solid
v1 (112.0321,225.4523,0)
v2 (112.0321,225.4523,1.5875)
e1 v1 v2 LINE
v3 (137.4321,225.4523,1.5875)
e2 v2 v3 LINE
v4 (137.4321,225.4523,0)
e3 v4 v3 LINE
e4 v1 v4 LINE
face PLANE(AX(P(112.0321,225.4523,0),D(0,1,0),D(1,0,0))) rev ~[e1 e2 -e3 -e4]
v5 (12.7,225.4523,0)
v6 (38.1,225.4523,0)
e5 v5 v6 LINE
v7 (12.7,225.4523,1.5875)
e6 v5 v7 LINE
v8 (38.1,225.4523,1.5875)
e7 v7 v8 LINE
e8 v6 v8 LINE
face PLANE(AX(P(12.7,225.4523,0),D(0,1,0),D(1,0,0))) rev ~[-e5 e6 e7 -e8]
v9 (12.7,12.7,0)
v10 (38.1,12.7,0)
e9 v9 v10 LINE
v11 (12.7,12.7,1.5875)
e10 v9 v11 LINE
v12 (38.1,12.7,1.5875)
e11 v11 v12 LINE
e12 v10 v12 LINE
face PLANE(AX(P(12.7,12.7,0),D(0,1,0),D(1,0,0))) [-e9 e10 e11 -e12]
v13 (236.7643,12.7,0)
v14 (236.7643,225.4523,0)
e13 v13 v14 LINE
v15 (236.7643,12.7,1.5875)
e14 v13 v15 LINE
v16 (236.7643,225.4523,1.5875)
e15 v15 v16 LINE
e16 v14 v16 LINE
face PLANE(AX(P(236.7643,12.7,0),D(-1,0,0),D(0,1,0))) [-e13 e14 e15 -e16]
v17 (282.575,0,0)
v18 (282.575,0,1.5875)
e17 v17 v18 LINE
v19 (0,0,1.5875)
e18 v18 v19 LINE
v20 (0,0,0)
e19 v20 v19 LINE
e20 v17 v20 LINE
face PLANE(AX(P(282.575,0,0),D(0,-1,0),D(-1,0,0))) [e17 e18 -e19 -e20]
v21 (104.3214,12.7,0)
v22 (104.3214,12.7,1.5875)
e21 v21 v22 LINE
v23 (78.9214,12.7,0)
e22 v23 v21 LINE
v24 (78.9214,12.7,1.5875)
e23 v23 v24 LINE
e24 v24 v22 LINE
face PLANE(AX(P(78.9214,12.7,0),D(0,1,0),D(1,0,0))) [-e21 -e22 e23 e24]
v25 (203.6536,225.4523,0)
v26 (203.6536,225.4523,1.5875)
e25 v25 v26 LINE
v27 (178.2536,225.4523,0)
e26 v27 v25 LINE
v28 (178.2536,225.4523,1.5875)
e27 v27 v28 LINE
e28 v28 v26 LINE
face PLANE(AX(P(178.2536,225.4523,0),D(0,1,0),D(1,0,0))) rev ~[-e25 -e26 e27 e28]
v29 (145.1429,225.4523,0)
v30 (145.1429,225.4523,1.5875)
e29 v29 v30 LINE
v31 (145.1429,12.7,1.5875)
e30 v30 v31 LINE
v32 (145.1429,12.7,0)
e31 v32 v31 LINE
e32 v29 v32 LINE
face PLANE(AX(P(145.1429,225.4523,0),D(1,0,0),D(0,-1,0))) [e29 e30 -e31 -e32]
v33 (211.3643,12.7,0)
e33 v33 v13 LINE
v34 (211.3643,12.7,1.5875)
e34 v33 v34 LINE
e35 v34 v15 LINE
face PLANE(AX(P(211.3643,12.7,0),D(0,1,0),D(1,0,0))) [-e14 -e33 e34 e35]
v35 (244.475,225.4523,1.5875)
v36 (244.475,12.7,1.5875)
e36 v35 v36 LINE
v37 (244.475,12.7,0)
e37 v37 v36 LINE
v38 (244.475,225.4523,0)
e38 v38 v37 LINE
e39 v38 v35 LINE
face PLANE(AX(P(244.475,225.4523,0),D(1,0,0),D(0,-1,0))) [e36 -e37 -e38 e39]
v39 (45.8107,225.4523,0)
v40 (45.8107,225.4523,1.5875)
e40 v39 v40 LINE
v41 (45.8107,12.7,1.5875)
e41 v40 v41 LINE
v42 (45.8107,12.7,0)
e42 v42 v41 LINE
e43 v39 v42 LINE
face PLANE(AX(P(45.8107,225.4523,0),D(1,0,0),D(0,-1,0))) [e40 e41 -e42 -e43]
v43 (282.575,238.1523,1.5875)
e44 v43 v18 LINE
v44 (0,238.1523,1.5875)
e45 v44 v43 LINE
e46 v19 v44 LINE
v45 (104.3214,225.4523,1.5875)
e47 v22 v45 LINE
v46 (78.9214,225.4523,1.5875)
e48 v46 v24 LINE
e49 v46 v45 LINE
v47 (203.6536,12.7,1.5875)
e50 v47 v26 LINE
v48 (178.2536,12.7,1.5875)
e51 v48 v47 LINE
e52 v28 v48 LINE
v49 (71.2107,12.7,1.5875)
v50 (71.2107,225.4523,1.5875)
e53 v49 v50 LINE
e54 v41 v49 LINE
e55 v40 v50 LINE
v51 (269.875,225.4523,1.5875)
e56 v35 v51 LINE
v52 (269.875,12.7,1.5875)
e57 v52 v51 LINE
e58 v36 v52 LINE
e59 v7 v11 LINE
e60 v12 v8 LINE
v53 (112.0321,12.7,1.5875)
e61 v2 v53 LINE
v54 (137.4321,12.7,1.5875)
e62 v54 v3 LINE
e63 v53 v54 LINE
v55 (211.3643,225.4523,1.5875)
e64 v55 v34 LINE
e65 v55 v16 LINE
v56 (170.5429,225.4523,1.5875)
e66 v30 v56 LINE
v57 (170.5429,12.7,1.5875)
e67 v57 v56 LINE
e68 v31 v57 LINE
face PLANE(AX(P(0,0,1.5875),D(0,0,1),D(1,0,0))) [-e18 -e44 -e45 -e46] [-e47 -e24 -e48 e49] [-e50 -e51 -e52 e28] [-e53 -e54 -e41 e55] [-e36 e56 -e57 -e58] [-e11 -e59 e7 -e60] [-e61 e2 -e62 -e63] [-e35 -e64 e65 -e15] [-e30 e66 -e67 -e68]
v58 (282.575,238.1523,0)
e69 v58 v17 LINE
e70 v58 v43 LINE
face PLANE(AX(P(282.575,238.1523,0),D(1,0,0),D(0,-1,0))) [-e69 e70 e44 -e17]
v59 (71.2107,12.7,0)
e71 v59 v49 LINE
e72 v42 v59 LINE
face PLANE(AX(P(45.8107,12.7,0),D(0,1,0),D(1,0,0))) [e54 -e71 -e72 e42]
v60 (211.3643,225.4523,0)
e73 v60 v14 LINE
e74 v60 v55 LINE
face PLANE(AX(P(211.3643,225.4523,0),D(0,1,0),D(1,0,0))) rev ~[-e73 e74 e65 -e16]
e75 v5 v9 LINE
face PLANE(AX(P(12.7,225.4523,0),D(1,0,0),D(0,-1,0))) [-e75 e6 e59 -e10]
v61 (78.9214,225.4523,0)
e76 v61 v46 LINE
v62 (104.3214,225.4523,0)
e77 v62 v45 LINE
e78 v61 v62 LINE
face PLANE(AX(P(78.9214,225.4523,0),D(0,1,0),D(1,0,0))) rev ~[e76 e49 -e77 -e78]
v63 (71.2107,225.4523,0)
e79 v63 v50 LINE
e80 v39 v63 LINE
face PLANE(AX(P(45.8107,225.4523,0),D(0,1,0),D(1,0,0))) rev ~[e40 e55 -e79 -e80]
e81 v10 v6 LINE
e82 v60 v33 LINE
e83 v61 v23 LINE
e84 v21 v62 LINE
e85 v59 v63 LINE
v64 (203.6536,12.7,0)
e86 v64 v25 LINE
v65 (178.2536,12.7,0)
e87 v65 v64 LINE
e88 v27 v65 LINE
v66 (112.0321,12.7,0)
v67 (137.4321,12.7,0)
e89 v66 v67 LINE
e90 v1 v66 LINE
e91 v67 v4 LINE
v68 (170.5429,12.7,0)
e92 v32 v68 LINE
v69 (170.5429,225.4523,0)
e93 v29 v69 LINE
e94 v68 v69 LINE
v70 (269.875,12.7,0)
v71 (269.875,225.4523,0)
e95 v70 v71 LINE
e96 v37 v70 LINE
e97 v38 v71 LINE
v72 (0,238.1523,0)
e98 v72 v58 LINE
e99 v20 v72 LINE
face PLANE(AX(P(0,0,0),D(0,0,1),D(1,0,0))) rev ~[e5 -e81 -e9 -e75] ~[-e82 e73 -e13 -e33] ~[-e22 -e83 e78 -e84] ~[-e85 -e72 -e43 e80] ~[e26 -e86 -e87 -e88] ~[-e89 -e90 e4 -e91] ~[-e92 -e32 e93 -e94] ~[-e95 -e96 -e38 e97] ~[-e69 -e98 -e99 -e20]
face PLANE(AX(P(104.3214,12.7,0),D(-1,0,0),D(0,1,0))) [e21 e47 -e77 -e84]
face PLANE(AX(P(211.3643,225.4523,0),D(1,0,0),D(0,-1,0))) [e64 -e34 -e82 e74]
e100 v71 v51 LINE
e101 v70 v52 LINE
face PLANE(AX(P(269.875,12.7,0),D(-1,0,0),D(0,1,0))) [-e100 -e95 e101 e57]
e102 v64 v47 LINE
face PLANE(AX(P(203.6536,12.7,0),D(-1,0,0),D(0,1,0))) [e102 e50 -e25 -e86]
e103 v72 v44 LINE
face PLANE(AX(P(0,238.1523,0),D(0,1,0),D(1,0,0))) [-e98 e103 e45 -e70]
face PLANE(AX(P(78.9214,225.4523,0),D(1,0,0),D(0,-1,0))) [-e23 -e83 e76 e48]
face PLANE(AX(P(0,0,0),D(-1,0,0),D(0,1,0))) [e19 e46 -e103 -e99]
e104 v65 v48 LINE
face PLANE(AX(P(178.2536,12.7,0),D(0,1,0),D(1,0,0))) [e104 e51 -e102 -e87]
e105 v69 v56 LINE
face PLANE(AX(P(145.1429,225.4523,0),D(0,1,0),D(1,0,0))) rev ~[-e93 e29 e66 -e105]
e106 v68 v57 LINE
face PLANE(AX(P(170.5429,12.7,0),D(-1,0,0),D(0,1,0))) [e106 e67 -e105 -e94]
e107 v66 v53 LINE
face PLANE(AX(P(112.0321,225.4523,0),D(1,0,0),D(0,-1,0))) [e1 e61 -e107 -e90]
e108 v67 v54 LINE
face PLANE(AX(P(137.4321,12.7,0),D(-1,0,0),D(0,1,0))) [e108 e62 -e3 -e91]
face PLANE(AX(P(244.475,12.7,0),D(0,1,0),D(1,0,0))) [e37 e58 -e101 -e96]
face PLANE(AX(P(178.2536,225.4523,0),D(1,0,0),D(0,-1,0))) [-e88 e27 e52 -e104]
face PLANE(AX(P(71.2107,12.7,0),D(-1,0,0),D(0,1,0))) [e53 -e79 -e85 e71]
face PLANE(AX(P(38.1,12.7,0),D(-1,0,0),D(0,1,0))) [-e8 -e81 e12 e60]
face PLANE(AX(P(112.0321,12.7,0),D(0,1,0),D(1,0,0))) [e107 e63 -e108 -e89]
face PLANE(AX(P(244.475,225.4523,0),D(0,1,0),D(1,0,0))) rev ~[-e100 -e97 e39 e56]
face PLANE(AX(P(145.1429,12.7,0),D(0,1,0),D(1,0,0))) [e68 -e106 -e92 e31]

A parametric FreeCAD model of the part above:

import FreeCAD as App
import Part
import Sketcher

V = App.Vector
Q = App.Units.Quantity


def add_polygon(sketch, points):
    """Adds a closed chain of lines whose ends are joined by coincident constraints."""
    first, n = sketch.GeometryCount, len(points)
    for a, b in zip(points, points[1:] + points[:1]):
        sketch.addGeometry(Part.LineSegment(App.Vector(*a, 0), App.Vector(*b, 0)), False)
    for i in range(n):
        sketch.addConstraint(Sketcher.Constraint("Coincident", first + i, 2, first + (i + 1) % n, 1))

doc = App.newDocument("Part")
body = doc.addObject("PartDesign::Body", "Body")

sketch1 = body.newObject("Sketcher::SketchObject", "Sketch")
sketch1.AttachmentSupport = (doc.getObject("XY_Plane"), [""])
sketch1.MapMode = "FlatFace"
add_polygon(sketch1, [(0, 238), (0, 0), (283, 0), (283, 238)])
add_polygon(sketch1, [(13, 13), (13, 225), (38, 225), (38, 13)])
add_polygon(sketch1, [(46, 13), (46, 225), (71, 225), (71, 13)])
add_polygon(sketch1, [(79, 13), (79, 225), (104, 225), (104, 13)])
add_polygon(sketch1, [(112, 13), (112, 225), (137, 225), (137, 13)])
add_polygon(sketch1, [(145, 13), (145, 225), (171, 225), (171, 13)])
add_polygon(sketch1, [(178, 13), (178, 225), (204, 225), (204, 13)])
add_polygon(sketch1, [(211, 13), (211, 225), (237, 225), (237, 13)])
add_polygon(sketch1, [(244, 13), (244, 225), (270, 225), (270, 13)])
sketch1.addConstraint(Sketcher.Constraint("Vertical", 0))
sketch1.addConstraint(Sketcher.Constraint("Horizontal", 1))
sketch1.addConstraint(Sketcher.Constraint("Vertical", 2))
sketch1.addConstraint(Sketcher.Constraint("Horizontal", 3))
sketch1.addConstraint(Sketcher.Constraint("Vertical", 4))
sketch1.addConstraint(Sketcher.Constraint("Horizontal", 5))
sketch1.addConstraint(Sketcher.Constraint("Vertical", 6))
sketch1.addConstraint(Sketcher.Constraint("Horizontal", 7))
sketch1.addConstraint(Sketcher.Constraint("Vertical", 8))
sketch1.addConstraint(Sketcher.Constraint("Horizontal", 9))
sketch1.addConstraint(Sketcher.Constraint("Vertical", 10))
sketch1.addConstraint(Sketcher.Constraint("Horizontal", 11))
sketch1.addConstraint(Sketcher.Constraint("Vertical", 12))
sketch1.addConstraint(Sketcher.Constraint("Horizontal", 13))
sketch1.addConstraint(Sketcher.Constraint("Vertical", 14))
sketch1.addConstraint(Sketcher.Constraint("Horizontal", 15))
sketch1.addConstraint(Sketcher.Constraint("Vertical", 16))
sketch1.addConstraint(Sketcher.Constraint("Horizontal", 17))
sketch1.addConstraint(Sketcher.Constraint("Vertical", 18))
sketch1.addConstraint(Sketcher.Constraint("Horizontal", 19))
sketch1.addConstraint(Sketcher.Constraint("Vertical", 20))
sketch1.addConstraint(Sketcher.Constraint("Horizontal", 21))
sketch1.addConstraint(Sketcher.Constraint("Vertical", 22))
sketch1.addConstraint(Sketcher.Constraint("Horizontal", 23))
sketch1.addConstraint(Sketcher.Constraint("Vertical", 24))
sketch1.addConstraint(Sketcher.Constraint("Horizontal", 25))
sketch1.addConstraint(Sketcher.Constraint("Vertical", 26))
sketch1.addConstraint(Sketcher.Constraint("Horizontal", 27))
sketch1.addConstraint(Sketcher.Constraint("Vertical", 28))
sketch1.addConstraint(Sketcher.Constraint("Horizontal", 29))
sketch1.addConstraint(Sketcher.Constraint("Vertical", 30))
sketch1.addConstraint(Sketcher.Constraint("Horizontal", 31))
sketch1.addConstraint(Sketcher.Constraint("Vertical", 32))
sketch1.addConstraint(Sketcher.Constraint("Horizontal", 33))
sketch1.addConstraint(Sketcher.Constraint("Vertical", 34))
sketch1.addConstraint(Sketcher.Constraint("Horizontal", 35))
sketch1.addConstraint(Sketcher.Constraint("Coincident", 0, 2, -1, 1))
sketch1.addConstraint(Sketcher.Constraint("Horizontal", 5, 2, 8, 2))
sketch1.addConstraint(Sketcher.Constraint("Horizontal", 7, 2, 10, 2))
sketch1.addConstraint(Sketcher.Constraint("Horizontal", 9, 2, 12, 2))
sketch1.addConstraint(Sketcher.Constraint("Horizontal", 11, 2, 14, 2))
sketch1.addConstraint(Sketcher.Constraint("Horizontal", 13, 2, 16, 2))
sketch1.addConstraint(Sketcher.Constraint("Horizontal", 15, 2, 18, 2))
sketch1.addConstraint(Sketcher.Constraint("Horizontal", 17, 2, 20, 2))
sketch1.addConstraint(Sketcher.Constraint("Horizontal", 19, 2, 22, 2))
sketch1.addConstraint(Sketcher.Constraint("Horizontal", 21, 2, 24, 2))
sketch1.addConstraint(Sketcher.Constraint("Horizontal", 23, 2, 26, 2))
sketch1.addConstraint(Sketcher.Constraint("Horizontal", 25, 2, 28, 2))
sketch1.addConstraint(Sketcher.Constraint("Horizontal", 27, 2, 30, 2))
sketch1.addConstraint(Sketcher.Constraint("Horizontal", 29, 2, 32, 2))
sketch1.addConstraint(Sketcher.Constraint("Horizontal", 31, 2, 34, 2))
sketch1.addConstraint(Sketcher.Constraint("Equal", 7, 9))
sketch1.addConstraint(Sketcher.Constraint("Equal", 11, 13))
sketch1.addConstraint(Sketcher.Constraint("Equal", 15, 17))
sketch1.addConstraint(Sketcher.Constraint("Equal", 19, 21))
sketch1.addConstraint(Sketcher.Constraint("Equal", 23, 25))
sketch1.addConstraint(Sketcher.Constraint("Equal", 27, 29))
sketch1.addConstraint(Sketcher.Constraint("Equal", 31, 33))
sketch1.addConstraint(Sketcher.Constraint("DistanceX", 5, 1, 5, 2, Q("1 in")))
sketch1.addConstraint(Sketcher.Constraint("DistanceX", -1, 1, 4, 2, Q("0.5 in")))
sketch1.addConstraint(Sketcher.Constraint("DistanceY", -1, 1, 6, 2, Q("0.5 in")))
sketch1.addConstraint(Sketcher.Constraint("DistanceY", 4, 2, 3, 2, Q("0.5 in")))
sketch1.addConstraint(Sketcher.Constraint("DistanceX", 33, 2, 2, 2, Q("0.5 in")))
sketch1.addConstraint(Sketcher.Constraint("DistanceX", 1, 1, 1, 2, Q("11.125 in")))
sketch1.addConstraint(Sketcher.Constraint("DistanceY", 0, 2, 0, 1, Q("238.1523 mm")))
sketch1.addConstraint(Sketcher.Constraint("DistanceX", 4, 2, 8, 2, Q("33.1107 mm")))
sketch1.addConstraint(Sketcher.Constraint("DistanceX", 8, 2, 12, 2, Q("33.1107 mm")))
sketch1.addConstraint(Sketcher.Constraint("DistanceX", 12, 2, 16, 2, Q("33.1107 mm")))
sketch1.addConstraint(Sketcher.Constraint("DistanceX", 16, 2, 20, 2, Q("33.1108 mm")))
sketch1.addConstraint(Sketcher.Constraint("DistanceX", 20, 2, 24, 2, Q("33.1107 mm")))
sketch1.addConstraint(Sketcher.Constraint("DistanceX", 24, 2, 28, 2, Q("33.1107 mm")))
pad1 = body.newObject("PartDesign::Pad", "Pad")
pad1.Profile = sketch1
pad1.Length = Q("0.0625 in")

doc.recompute()
